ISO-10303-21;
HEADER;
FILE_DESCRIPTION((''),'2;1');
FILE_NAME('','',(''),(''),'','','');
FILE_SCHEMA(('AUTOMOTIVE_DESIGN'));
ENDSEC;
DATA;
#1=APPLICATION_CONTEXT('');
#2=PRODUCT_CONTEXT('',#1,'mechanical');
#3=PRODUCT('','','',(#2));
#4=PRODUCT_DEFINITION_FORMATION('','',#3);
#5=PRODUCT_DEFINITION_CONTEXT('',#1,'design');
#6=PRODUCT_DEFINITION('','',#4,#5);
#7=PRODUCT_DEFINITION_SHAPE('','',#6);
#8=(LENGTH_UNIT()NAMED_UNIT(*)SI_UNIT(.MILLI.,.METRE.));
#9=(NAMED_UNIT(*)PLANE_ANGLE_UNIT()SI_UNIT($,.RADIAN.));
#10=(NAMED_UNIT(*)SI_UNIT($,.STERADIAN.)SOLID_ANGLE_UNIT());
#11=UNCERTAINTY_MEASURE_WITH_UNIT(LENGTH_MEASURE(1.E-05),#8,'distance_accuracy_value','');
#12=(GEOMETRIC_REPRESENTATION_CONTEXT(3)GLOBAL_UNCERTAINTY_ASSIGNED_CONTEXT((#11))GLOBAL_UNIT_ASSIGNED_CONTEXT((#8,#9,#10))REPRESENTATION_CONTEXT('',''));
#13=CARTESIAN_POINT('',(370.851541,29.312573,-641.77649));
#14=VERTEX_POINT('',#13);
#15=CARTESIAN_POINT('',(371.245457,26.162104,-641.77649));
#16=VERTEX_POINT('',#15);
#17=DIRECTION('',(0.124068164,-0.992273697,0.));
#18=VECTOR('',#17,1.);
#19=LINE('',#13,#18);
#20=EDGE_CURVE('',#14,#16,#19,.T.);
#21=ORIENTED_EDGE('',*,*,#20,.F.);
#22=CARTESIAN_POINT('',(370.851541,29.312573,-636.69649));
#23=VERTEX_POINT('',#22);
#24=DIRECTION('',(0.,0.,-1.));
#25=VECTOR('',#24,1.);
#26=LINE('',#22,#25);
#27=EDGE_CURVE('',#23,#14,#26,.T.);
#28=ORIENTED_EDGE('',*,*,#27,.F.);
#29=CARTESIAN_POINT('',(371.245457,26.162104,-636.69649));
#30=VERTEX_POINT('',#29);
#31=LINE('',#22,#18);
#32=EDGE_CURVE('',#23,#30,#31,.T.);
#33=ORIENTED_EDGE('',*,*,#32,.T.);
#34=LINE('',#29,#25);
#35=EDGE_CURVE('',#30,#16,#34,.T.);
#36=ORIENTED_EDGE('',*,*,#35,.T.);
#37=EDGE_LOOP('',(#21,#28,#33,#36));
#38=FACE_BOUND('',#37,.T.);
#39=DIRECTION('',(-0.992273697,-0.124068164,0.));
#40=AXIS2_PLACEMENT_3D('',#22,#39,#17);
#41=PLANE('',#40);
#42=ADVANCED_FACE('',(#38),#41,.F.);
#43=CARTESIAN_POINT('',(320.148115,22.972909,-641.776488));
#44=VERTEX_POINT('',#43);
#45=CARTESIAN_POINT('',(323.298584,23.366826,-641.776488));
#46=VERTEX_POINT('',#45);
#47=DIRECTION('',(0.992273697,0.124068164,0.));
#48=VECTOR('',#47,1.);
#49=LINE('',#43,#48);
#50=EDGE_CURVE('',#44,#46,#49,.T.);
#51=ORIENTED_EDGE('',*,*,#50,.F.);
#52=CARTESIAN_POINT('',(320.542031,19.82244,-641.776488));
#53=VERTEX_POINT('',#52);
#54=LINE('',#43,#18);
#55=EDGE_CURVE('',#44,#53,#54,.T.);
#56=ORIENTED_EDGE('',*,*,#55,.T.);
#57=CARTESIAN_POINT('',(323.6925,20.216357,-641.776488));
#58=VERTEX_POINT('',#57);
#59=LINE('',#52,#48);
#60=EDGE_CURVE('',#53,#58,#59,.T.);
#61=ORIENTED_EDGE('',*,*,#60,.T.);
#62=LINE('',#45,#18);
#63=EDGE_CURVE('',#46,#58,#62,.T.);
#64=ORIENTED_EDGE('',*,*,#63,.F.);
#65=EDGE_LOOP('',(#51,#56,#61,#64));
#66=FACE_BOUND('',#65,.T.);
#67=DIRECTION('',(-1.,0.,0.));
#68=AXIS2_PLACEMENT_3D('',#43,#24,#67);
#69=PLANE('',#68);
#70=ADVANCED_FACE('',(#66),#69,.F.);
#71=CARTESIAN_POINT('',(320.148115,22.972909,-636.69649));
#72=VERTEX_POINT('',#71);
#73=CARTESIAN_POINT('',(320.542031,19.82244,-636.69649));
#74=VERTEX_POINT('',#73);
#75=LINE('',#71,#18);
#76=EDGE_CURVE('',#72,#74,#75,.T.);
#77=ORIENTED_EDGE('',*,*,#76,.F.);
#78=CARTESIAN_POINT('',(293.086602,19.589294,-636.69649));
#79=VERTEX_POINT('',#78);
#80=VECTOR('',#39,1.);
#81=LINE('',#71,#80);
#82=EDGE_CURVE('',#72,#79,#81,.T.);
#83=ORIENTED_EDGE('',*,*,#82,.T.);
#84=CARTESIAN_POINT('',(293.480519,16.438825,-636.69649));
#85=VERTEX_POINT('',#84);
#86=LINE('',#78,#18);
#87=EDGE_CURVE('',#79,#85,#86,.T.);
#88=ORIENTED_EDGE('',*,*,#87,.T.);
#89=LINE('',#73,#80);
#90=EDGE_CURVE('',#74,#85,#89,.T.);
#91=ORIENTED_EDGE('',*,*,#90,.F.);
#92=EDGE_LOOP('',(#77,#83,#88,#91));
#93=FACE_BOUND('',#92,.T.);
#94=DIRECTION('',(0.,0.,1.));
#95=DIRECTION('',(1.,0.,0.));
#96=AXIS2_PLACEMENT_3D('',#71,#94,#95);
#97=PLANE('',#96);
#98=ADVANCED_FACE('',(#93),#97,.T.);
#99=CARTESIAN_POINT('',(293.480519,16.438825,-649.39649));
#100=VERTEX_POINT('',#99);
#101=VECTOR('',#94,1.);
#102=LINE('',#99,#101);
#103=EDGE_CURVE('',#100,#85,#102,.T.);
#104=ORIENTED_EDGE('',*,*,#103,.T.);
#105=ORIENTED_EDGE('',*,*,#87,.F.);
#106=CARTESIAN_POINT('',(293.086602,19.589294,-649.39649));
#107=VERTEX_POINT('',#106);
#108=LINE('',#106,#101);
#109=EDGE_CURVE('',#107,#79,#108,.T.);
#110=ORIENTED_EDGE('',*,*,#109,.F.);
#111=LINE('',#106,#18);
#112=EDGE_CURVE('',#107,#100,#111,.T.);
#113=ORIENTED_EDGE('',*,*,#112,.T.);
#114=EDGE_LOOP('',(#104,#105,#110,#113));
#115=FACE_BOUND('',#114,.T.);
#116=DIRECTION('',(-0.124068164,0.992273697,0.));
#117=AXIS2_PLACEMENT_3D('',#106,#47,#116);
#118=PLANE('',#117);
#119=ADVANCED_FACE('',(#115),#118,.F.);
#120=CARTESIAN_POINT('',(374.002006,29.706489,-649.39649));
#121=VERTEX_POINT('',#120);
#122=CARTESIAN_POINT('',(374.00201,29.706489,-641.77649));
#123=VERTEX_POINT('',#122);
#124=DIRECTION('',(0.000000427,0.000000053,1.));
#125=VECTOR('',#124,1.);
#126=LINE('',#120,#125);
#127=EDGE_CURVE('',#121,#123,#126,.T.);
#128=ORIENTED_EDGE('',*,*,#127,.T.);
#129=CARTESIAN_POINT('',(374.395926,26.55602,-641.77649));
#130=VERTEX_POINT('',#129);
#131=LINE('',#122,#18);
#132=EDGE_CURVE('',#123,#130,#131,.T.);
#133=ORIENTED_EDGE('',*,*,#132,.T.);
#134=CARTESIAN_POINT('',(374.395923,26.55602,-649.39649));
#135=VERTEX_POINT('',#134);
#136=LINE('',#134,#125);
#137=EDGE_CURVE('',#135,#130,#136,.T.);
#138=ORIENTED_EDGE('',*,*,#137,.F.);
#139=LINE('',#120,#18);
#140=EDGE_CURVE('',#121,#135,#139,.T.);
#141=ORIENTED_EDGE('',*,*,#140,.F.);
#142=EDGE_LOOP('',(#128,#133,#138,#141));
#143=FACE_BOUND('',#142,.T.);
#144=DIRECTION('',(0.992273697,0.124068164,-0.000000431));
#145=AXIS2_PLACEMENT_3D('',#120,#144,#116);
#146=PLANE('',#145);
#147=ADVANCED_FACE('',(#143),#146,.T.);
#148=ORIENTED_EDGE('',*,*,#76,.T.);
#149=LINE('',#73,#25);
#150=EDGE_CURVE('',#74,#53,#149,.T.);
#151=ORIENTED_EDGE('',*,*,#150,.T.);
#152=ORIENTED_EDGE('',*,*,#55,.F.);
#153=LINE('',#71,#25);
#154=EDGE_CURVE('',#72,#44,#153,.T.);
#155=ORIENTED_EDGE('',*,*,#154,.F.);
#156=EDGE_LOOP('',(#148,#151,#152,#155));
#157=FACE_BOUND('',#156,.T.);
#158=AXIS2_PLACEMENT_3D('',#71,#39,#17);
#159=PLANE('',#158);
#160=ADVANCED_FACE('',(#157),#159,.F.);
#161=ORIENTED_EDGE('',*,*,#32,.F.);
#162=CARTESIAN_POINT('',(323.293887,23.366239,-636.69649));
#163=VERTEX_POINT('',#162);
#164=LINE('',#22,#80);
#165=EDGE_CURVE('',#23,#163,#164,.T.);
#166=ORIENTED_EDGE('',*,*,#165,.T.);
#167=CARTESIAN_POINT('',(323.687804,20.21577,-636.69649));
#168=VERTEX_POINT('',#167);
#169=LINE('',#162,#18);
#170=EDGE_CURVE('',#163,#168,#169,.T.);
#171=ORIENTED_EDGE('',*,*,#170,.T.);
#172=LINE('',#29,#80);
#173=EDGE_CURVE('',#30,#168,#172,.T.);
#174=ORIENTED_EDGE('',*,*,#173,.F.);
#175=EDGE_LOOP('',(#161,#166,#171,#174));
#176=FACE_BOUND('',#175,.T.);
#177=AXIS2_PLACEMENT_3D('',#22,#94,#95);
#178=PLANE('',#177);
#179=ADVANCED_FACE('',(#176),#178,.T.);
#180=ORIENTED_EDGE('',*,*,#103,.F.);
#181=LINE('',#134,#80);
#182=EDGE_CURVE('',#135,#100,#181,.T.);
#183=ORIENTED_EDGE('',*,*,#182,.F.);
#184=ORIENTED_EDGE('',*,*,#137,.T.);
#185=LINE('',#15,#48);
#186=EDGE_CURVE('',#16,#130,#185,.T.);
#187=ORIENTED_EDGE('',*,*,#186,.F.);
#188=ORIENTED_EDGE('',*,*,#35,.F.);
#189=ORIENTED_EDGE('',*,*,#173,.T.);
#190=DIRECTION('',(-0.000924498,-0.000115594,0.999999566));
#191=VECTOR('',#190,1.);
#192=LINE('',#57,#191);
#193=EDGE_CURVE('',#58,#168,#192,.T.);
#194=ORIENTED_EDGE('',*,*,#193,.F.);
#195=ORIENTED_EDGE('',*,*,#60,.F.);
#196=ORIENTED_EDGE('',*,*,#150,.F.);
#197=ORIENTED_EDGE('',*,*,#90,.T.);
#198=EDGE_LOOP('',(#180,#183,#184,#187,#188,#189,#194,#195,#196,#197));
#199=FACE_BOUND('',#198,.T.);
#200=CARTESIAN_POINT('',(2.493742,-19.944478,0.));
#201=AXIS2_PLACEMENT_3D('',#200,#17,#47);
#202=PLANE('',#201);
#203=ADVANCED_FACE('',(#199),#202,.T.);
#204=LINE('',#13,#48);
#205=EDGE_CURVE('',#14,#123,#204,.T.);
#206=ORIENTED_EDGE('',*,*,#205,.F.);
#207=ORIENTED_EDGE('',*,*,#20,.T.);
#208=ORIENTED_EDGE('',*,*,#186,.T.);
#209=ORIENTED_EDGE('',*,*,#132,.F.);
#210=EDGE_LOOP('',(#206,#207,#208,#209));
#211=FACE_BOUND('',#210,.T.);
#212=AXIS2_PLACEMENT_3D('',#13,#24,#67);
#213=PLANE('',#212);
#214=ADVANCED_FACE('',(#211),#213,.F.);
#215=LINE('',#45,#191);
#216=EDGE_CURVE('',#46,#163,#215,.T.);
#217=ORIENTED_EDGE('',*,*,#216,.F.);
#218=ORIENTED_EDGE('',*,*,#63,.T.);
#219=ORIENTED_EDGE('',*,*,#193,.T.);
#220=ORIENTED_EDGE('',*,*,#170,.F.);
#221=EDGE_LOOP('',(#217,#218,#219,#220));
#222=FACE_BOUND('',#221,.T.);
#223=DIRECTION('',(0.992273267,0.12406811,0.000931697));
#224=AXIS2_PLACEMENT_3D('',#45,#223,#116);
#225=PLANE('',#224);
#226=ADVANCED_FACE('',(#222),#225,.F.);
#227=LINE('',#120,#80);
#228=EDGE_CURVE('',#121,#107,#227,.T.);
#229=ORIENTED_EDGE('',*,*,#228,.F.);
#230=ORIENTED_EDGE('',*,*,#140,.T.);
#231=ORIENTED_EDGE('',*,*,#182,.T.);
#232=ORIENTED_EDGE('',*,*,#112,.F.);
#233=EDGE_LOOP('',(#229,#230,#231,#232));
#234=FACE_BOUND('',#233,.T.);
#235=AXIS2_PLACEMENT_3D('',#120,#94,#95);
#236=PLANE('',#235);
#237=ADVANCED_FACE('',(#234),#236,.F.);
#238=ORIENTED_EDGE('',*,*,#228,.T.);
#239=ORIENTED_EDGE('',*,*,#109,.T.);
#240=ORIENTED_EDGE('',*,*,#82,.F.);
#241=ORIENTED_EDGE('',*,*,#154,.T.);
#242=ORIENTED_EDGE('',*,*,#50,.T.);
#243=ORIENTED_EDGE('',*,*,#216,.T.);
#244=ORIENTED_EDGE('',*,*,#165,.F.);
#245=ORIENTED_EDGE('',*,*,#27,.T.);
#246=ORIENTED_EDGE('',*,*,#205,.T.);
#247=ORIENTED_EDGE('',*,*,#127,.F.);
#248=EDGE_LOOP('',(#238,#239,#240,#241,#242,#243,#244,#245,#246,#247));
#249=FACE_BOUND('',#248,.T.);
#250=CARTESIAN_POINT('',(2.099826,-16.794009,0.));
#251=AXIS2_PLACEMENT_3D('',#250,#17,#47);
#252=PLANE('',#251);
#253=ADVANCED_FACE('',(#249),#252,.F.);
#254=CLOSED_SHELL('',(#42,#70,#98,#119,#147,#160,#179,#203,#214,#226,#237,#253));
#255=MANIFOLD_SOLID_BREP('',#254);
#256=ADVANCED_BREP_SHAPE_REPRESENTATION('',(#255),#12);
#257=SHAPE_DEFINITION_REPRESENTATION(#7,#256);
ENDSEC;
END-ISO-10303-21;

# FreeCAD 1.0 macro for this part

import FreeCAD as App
import Part
import Sketcher

V = App.Vector
Q = App.Units.Quantity

doc = App.newDocument("Part")
body = doc.addObject("PartDesign::Body", "Body")

# Sketch on an angled plane
sketch1 = body.newObject("Sketcher::SketchObject", "Sketch")
sketch1.Placement = App.Placement(V(2.493742, -19.944478, 0), App.Rotation(V(0.992273697, 0.124068164, 0), V(0, 0, -0.999999999), V(-0.124068164, 0.992273697, 0), "ZXY"))
sketch1.addGeometry([
    Part.LineSegment(V(374.797983, 649.396489, 0), V(293.252534, 649.396489, 0)),  # 0
    Part.LineSegment(V(293.252534, 649.396489, 0), V(293.252534, 636.696489, 0)),  # 1
    Part.LineSegment(V(293.252534, 636.696489, 0), V(320.52476, 636.696489, 0)),  # 2
    Part.LineSegment(V(320.52476, 636.696489, 0), V(320.52476, 641.776486, 0)),  # 3
    Part.LineSegment(V(320.52476, 641.776486, 0), V(323.69976, 641.776486, 0)),  # 4
    Part.LineSegment(V(323.69976, 641.776486, 0), V(323.695027, 636.696489, 0)),  # 5
    Part.LineSegment(V(323.695027, 636.696489, 0), V(371.622986, 636.696489, 0)),  # 6
    Part.LineSegment(V(371.622986, 636.696489, 0), V(371.622986, 641.776489, 0)),  # 7
    Part.LineSegment(V(371.622986, 641.776489, 0), V(374.797986, 641.776489, 0)),  # 8
    Part.LineSegment(V(374.797986, 641.776489, 0), V(374.797983, 649.396489, 0)),  # 9
], False)
sketch1.addConstraint([
    Sketcher.Constraint("Coincident", 0, 2, 1, 1),
    Sketcher.Constraint("Coincident", 1, 2, 2, 1),
    Sketcher.Constraint("Coincident", 2, 2, 3, 1),
    Sketcher.Constraint("Coincident", 3, 2, 4, 1),
    Sketcher.Constraint("Coincident", 4, 2, 5, 1),
    Sketcher.Constraint("Coincident", 5, 2, 6, 1),
    Sketcher.Constraint("Coincident", 6, 2, 7, 1),
    Sketcher.Constraint("Coincident", 7, 2, 8, 1),
    Sketcher.Constraint("Coincident", 8, 2, 9, 1),
    Sketcher.Constraint("Coincident", 9, 2, 0, 1),
    Sketcher.Constraint("Horizontal", 0),
    Sketcher.Constraint("Vertical", 1),
    Sketcher.Constraint("Horizontal", 2),
    Sketcher.Constraint("Vertical", 3),
    Sketcher.Constraint("Horizontal", 4),
    Sketcher.Constraint("Horizontal", 6),
    Sketcher.Constraint("Vertical", 7),
    Sketcher.Constraint("Horizontal", 8),
    Sketcher.Constraint("Horizontal", 2, 2, 5, 2),
    Sketcher.Constraint("Equal", 4, 8),
    Sketcher.Constraint("DistanceY", 1, 2, 1, 1, Q("0.5 in")),
    Sketcher.Constraint("DistanceY", 3, 1, 3, 2, Q("0.1999999 in")),
    Sketcher.Constraint("DistanceY", 7, 1, 7, 2, Q("0.2 in")),
    Sketcher.Constraint("DistanceX", 4, 1, 4, 2, Q("0.125 in")),
    Sketcher.Constraint("DistanceX", 7, 2, 9, 2, Q("0.1249999 in")),
    Sketcher.Constraint("DistanceX", 0, 2, 0, 1, 81.545449),
    Sketcher.Constraint("DistanceX", 6, 1, 6, 2, 47.927959),
    Sketcher.Constraint("DistanceX", 2, 1, 2, 2, 27.272226),
    Sketcher.Constraint("DistanceY", -1, 1, 0, 2, 649.396489),
    Sketcher.Constraint("DistanceX", -1, 1, 2, 2, 320.52476),
])
pad1 = body.newObject("PartDesign::Pad", "Pad")
pad1.Profile = sketch1
pad1.Length = Q("0.125 in")

doc.recompute()
